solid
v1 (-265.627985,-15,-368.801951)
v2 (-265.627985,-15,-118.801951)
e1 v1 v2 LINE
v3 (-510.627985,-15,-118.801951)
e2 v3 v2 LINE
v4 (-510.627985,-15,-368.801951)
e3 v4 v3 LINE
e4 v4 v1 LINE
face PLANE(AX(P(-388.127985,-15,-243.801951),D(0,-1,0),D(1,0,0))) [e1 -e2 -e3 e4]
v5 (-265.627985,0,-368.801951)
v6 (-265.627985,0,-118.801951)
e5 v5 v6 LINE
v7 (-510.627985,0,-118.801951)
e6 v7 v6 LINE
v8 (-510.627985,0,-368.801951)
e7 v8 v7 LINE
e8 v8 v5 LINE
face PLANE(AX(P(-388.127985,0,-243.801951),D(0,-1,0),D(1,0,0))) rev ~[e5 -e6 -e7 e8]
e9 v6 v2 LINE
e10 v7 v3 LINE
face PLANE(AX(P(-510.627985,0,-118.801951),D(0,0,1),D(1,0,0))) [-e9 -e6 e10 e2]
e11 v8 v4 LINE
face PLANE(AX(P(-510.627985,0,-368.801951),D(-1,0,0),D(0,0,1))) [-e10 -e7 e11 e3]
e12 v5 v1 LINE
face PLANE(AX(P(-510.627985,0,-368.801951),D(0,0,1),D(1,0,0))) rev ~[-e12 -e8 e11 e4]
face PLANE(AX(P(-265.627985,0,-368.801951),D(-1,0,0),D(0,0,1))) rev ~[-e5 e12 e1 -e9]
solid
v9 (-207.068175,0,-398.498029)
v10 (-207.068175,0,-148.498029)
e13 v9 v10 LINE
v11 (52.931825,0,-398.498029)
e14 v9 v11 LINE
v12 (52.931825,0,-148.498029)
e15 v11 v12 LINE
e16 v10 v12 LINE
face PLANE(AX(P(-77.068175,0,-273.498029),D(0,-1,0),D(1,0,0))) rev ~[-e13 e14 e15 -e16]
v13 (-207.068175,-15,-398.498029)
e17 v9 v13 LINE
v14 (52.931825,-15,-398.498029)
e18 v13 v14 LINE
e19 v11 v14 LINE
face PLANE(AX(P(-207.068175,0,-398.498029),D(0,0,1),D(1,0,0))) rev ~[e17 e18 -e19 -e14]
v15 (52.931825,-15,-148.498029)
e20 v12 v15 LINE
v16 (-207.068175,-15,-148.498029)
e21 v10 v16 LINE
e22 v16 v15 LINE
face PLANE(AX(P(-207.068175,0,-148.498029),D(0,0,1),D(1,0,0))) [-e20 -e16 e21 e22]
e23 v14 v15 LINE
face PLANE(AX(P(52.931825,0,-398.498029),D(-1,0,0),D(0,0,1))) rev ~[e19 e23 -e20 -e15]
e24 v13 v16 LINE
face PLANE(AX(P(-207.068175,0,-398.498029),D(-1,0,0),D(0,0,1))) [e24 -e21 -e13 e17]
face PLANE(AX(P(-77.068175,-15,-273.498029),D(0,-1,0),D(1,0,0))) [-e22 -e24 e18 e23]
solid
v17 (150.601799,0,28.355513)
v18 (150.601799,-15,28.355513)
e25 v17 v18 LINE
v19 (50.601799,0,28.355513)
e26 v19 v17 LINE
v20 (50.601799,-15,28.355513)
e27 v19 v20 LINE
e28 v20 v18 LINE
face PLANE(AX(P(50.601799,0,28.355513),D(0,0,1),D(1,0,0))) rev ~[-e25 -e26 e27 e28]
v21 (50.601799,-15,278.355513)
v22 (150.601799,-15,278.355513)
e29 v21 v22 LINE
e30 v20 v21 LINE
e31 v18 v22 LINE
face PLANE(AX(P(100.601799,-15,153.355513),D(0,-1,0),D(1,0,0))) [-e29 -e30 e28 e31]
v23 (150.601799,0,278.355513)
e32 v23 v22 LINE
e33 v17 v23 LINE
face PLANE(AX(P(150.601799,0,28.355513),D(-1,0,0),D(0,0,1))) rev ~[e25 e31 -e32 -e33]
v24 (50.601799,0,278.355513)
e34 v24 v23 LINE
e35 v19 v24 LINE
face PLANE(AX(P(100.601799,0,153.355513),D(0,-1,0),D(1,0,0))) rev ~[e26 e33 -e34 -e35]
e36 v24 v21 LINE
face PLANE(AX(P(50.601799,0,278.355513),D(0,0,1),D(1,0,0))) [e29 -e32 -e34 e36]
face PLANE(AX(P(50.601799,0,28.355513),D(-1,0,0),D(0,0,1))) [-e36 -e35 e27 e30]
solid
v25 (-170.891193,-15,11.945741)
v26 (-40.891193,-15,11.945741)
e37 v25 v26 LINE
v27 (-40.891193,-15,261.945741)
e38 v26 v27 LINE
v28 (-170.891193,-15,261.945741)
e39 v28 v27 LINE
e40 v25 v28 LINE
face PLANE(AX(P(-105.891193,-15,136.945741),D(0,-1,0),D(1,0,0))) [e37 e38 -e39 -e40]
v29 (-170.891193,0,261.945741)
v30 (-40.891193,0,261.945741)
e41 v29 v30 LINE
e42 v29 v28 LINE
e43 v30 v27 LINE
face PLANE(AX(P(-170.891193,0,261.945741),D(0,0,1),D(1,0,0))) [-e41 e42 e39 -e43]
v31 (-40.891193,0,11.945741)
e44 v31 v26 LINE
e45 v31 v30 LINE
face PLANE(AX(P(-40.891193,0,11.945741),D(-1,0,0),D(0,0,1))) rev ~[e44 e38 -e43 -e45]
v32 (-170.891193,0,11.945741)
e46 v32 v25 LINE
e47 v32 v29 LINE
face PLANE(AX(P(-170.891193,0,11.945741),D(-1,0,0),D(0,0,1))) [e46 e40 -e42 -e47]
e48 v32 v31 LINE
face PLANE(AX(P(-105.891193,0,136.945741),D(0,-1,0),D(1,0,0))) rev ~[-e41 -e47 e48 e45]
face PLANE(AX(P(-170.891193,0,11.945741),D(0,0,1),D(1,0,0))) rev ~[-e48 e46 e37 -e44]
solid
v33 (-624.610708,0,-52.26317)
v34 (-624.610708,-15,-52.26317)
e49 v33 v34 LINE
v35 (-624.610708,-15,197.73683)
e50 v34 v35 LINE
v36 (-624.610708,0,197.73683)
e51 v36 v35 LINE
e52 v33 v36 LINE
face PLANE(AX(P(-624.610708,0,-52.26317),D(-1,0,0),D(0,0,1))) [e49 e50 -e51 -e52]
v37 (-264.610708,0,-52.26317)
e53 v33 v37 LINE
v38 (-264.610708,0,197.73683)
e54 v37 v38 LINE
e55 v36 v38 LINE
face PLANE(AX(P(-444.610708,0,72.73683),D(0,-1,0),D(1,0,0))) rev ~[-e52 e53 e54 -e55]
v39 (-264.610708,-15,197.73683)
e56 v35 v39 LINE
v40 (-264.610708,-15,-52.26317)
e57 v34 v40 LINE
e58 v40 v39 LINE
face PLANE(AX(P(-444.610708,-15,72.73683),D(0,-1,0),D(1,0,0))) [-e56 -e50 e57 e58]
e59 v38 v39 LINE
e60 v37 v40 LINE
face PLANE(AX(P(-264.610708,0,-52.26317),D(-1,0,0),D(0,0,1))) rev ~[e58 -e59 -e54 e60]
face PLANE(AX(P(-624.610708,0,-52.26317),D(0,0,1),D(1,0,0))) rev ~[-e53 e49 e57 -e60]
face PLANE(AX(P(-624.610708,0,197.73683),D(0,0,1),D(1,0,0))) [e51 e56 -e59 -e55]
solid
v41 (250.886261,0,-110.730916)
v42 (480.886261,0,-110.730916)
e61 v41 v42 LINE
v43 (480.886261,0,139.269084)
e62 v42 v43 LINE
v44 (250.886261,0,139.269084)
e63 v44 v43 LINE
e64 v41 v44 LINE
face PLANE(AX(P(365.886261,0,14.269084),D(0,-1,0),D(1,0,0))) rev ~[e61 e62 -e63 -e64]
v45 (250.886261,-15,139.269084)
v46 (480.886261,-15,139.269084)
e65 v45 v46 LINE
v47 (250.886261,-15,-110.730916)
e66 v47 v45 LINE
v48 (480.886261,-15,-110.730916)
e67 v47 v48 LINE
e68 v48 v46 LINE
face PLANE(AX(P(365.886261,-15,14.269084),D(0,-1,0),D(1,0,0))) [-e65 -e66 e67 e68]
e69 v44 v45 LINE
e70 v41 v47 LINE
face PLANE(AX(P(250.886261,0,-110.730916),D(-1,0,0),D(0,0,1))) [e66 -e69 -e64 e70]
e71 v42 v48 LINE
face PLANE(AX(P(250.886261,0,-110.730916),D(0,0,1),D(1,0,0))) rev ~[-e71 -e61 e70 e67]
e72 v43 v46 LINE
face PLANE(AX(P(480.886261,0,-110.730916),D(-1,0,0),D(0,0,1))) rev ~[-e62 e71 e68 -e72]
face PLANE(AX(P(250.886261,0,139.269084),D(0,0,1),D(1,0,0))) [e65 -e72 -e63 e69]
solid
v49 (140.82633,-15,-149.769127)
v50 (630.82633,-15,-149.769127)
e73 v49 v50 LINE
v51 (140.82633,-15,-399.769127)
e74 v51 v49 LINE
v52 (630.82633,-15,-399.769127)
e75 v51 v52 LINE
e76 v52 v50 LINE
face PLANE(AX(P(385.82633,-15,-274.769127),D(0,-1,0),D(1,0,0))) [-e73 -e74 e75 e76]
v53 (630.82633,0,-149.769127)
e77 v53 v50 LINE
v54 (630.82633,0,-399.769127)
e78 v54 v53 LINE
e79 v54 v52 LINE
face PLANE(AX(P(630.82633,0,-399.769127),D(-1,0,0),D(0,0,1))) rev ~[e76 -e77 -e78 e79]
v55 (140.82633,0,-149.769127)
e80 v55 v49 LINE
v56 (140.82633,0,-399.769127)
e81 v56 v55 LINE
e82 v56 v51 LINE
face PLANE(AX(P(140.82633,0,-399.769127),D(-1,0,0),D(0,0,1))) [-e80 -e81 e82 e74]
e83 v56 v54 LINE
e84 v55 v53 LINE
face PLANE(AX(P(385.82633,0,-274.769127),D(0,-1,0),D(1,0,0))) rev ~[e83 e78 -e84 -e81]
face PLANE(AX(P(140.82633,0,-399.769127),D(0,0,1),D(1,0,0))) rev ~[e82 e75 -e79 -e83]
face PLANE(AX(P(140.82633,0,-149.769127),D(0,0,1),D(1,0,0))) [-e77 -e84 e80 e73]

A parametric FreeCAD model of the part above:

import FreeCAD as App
import Part
import Sketcher
Q = App.Units.Quantity

doc = App.newDocument("Part")
params = doc.addObject("Spreadsheet::Sheet", "Params")
for row, (alias, value) in enumerate([
    ("sketch1_width", "360 mm"),
    ("sketch1_height", "250 mm"),
    ("pad1_length", "15 mm"),
    ("sketch2_width", "130 mm"),
    ("sketch2_height", "250 mm"),
    ("pad2_length", "15 mm"),
    ("sketch3_width", "100 mm"),
    ("sketch3_height", "250 mm"),
    ("pad3_length", "15 mm"),
    ("sketch4_width", "230 mm"),
    ("sketch4_height", "250 mm"),
    ("pad4_length", "15 mm"),
    ("sketch5_width", "245 mm"),
    ("sketch5_height", "250 mm"),
    ("pad5_length", "15 mm"),
    ("sketch6_width", "260 mm"),
    ("sketch6_height", "250 mm"),
    ("pad6_length", "15 mm"),
    ("sketch7_width", "490 mm"),
    ("sketch7_height", "250 mm"),
    ("pad7_length", "15 mm"),
], start=1):
    params.set(f"A{row}", alias)
    params.set(f"B{row}", "=" + value)
    params.setAlias(f"B{row}", alias)

body = doc.addObject("PartDesign::Body", "Body")

# Sketch on XZ plane
sketch1 = doc.addObject("Sketcher::SketchObject", "Sketch")
body.addObject(sketch1)
sketch1.AttachmentSupport = (doc.XZ_Plane, [""])
sketch1.MapMode = "FlatFace"
sketch1.addGeometry([
    Part.LineSegment(App.Vector(-625, 198, 0), App.Vector(-625, -52, 0)),
    Part.LineSegment(App.Vector(-625, -52, 0), App.Vector(-265, -52, 0)),
    Part.LineSegment(App.Vector(-265, -52, 0), App.Vector(-265, 198, 0)),
    Part.LineSegment(App.Vector(-265, 198, 0), App.Vector(-625, 198, 0)),
], False)
sketch1.addConstraint([
    Sketcher.Constraint("Coincident", 0, 2, 1, 1),
    Sketcher.Constraint("Coincident", 1, 2, 2, 1),
    Sketcher.Constraint("Coincident", 2, 2, 3, 1),
    Sketcher.Constraint("Coincident", 3, 2, 0, 1),
    Sketcher.Constraint("Vertical", 0),
    Sketcher.Constraint("Horizontal", 1),
    Sketcher.Constraint("Vertical", 2),
    Sketcher.Constraint("Horizontal", 3),
    Sketcher.Constraint("DistanceX", 1, 1, 1, 2, Q("360 mm")),
    Sketcher.Constraint("DistanceY", 0, 2, 0, 1, Q("250 mm")),
    Sketcher.Constraint("DistanceX", 0, 2, -1, 1, Q("624.610708 mm")),
    Sketcher.Constraint("DistanceY", 0, 2, -1, 1, Q("52.26317 mm")),
])
sketch1.setExpression("Constraints[8]", "Params.sketch1_width")
sketch1.setExpression("Constraints[9]", "Params.sketch1_height")
pad1 = doc.addObject("PartDesign::Pad", "Pad")
body.addObject(pad1)
pad1.Profile = sketch1
pad1.setExpression("Length", "Params.pad1_length")
body2 = doc.addObject("PartDesign::Body", "Body001")

# Sketch on XZ plane
sketch2 = doc.addObject("Sketcher::SketchObject", "Sketch001")
body2.addObject(sketch2)
sketch2.AttachmentSupport = (doc.getObject("XZ_Plane001"), [""])
sketch2.MapMode = "FlatFace"
sketch2.addGeometry([
    Part.LineSegment(App.Vector(-171, 262, 0), App.Vector(-171, 12, 0)),
    Part.LineSegment(App.Vector(-171, 12, 0), App.Vector(-41, 12, 0)),
    Part.LineSegment(App.Vector(-41, 12, 0), App.Vector(-41, 262, 0)),
    Part.LineSegment(App.Vector(-41, 262, 0), App.Vector(-171, 262, 0)),
], False)
sketch2.addConstraint([
    Sketcher.Constraint("Coincident", 0, 2, 1, 1),
    Sketcher.Constraint("Coincident", 1, 2, 2, 1),
    Sketcher.Constraint("Coincident", 2, 2, 3, 1),
    Sketcher.Constraint("Coincident", 3, 2, 0, 1),
    Sketcher.Constraint("Vertical", 0),
    Sketcher.Constraint("Horizontal", 1),
    Sketcher.Constraint("Vertical", 2),
    Sketcher.Constraint("Horizontal", 3),
    Sketcher.Constraint("DistanceX", 1, 1, 1, 2, Q("130 mm")),
    Sketcher.Constraint("DistanceY", 0, 2, 0, 1, Q("250 mm")),
    Sketcher.Constraint("DistanceY", -1, 1, 0, 2, Q("11.945741 mm")),
    Sketcher.Constraint("DistanceX", 0, 2, -1, 1, Q("170.891193 mm")),
])
sketch2.setExpression("Constraints[8]", "Params.sketch2_width")
sketch2.setExpression("Constraints[9]", "Params.sketch2_height")
pad2 = doc.addObject("PartDesign::Pad", "Pad001")
body2.addObject(pad2)
pad2.Profile = sketch2
pad2.setExpression("Length", "Params.pad2_length")
body3 = doc.addObject("PartDesign::Body", "Body002")

# Sketch on XZ plane
sketch3 = doc.addObject("Sketcher::SketchObject", "Sketch002")
body3.addObject(sketch3)
sketch3.AttachmentSupport = (doc.getObject("XZ_Plane002"), [""])
sketch3.MapMode = "FlatFace"
sketch3.addGeometry([
    Part.LineSegment(App.Vector(51, 278, 0), App.Vector(51, 28, 0)),
    Part.LineSegment(App.Vector(51, 28, 0), App.Vector(151, 28, 0)),
    Part.LineSegment(App.Vector(151, 28, 0), App.Vector(151, 278, 0)),
    Part.LineSegment(App.Vector(151, 278, 0), App.Vector(51, 278, 0)),
], False)
sketch3.addConstraint([
    Sketcher.Constraint("Coincident", 0, 2, 1, 1),
    Sketcher.Constraint("Coincident", 1, 2, 2, 1),
    Sketcher.Constraint("Coincident", 2, 2, 3, 1),
    Sketcher.Constraint("Coincident", 3, 2, 0, 1),
    Sketcher.Constraint("Vertical", 0),
    Sketcher.Constraint("Horizontal", 1),
    Sketcher.Constraint("Vertical", 2),
    Sketcher.Constraint("Horizontal", 3),
    Sketcher.Constraint("DistanceX", 1, 1, 1, 2, Q("100 mm")),
    Sketcher.Constraint("DistanceY", 0, 2, 0, 1, Q("250 mm")),
    Sketcher.Constraint("DistanceX", -1, 1, 0, 2, Q("50.601799 mm")),
    Sketcher.Constraint("DistanceY", -1, 1, 0, 2, Q("28.355513 mm")),
])
sketch3.setExpression("Constraints[8]", "Params.sketch3_width")
sketch3.setExpression("Constraints[9]", "Params.sketch3_height")
pad3 = doc.addObject("PartDesign::Pad", "Pad002")
body3.addObject(pad3)
pad3.Profile = sketch3
pad3.setExpression("Length", "Params.pad3_length")
body4 = doc.addObject("PartDesign::Body", "Body003")

# Sketch on XZ plane
sketch4 = doc.addObject("Sketcher::SketchObject", "Sketch003")
body4.addObject(sketch4)
sketch4.AttachmentSupport = (doc.getObject("XZ_Plane003"), [""])
sketch4.MapMode = "FlatFace"
sketch4.addGeometry([
    Part.LineSegment(App.Vector(251, 139, 0), App.Vector(251, -111, 0)),
    Part.LineSegment(App.Vector(251, -111, 0), App.Vector(481, -111, 0)),
    Part.LineSegment(App.Vector(481, -111, 0), App.Vector(481, 139, 0)),
    Part.LineSegment(App.Vector(481, 139, 0), App.Vector(251, 139, 0)),
], False)
sketch4.addConstraint([
    Sketcher.Constraint("Coincident", 0, 2, 1, 1),
    Sketcher.Constraint("Coincident", 1, 2, 2, 1),
    Sketcher.Constraint("Coincident", 2, 2, 3, 1),
    Sketcher.Constraint("Coincident", 3, 2, 0, 1),
    Sketcher.Constraint("Vertical", 0),
    Sketcher.Constraint("Horizontal", 1),
    Sketcher.Constraint("Vertical", 2),
    Sketcher.Constraint("Horizontal", 3),
    Sketcher.Constraint("DistanceX", 1, 1, 1, 2, Q("230 mm")),
    Sketcher.Constraint("DistanceY", 0, 2, 0, 1, Q("250 mm")),
    Sketcher.Constraint("DistanceX", -1, 1, 0, 2, Q("250.886261 mm")),
    Sketcher.Constraint("DistanceY", 0, 2, -1, 1, Q("110.730916 mm")),
])
sketch4.setExpression("Constraints[8]", "Params.sketch4_width")
sketch4.setExpression("Constraints[9]", "Params.sketch4_height")
pad4 = doc.addObject("PartDesign::Pad", "Pad003")
body4.addObject(pad4)
pad4.Profile = sketch4
pad4.setExpression("Length", "Params.pad4_length")
body5 = doc.addObject("PartDesign::Body", "Body004")

# Sketch on XZ plane
sketch5 = doc.addObject("Sketcher::SketchObject", "Sketch004")
body5.addObject(sketch5)
sketch5.AttachmentSupport = (doc.getObject("XZ_Plane004"), [""])
sketch5.MapMode = "FlatFace"
sketch5.addGeometry([
    Part.LineSegment(App.Vector(-511, -119, 0), App.Vector(-511, -369, 0)),
    Part.LineSegment(App.Vector(-511, -369, 0), App.Vector(-266, -369, 0)),
    Part.LineSegment(App.Vector(-266, -369, 0), App.Vector(-266, -119, 0)),
    Part.LineSegment(App.Vector(-266, -119, 0), App.Vector(-511, -119, 0)),
], False)
sketch5.addConstraint([
    Sketcher.Constraint("Coincident", 0, 2, 1, 1),
    Sketcher.Constraint("Coincident", 1, 2, 2, 1),
    Sketcher.Constraint("Coincident", 2, 2, 3, 1),
    Sketcher.Constraint("Coincident", 3, 2, 0, 1),
    Sketcher.Constraint("Vertical", 0),
    Sketcher.Constraint("Horizontal", 1),
    Sketcher.Constraint("Vertical", 2),
    Sketcher.Constraint("Horizontal", 3),
    Sketcher.Constraint("DistanceX", 1, 1, 1, 2, Q("245 mm")),
    Sketcher.Constraint("DistanceY", 0, 2, 0, 1, Q("250 mm")),
    Sketcher.Constraint("DistanceY", 0, 2, -1, 1, Q("368.801951 mm")),
    Sketcher.Constraint("DistanceX", 0, 2, -1, 1, Q("510.627985 mm")),
])
sketch5.setExpression("Constraints[8]", "Params.sketch5_width")
sketch5.setExpression("Constraints[9]", "Params.sketch5_height")
pad5 = doc.addObject("PartDesign::Pad", "Pad004")
body5.addObject(pad5)
pad5.Profile = sketch5
pad5.setExpression("Length", "Params.pad5_length")
body6 = doc.addObject("PartDesign::Body", "Body005")

# Sketch on XZ plane
sketch6 = doc.addObject("Sketcher::SketchObject", "Sketch005")
body6.addObject(sketch6)
sketch6.AttachmentSupport = (doc.getObject("XZ_Plane005"), [""])
sketch6.MapMode = "FlatFace"
sketch6.addGeometry([
    Part.LineSegment(App.Vector(-207, -148, 0), App.Vector(-207, -398, 0)),
    Part.LineSegment(App.Vector(-207, -398, 0), App.Vector(53, -398, 0)),
    Part.LineSegment(App.Vector(53, -398, 0), App.Vector(53, -148, 0)),
    Part.LineSegment(App.Vector(53, -148, 0), App.Vector(-207, -148, 0)),
], False)
sketch6.addConstraint([
    Sketcher.Constraint("Coincident", 0, 2, 1, 1),
    Sketcher.Constraint("Coincident", 1, 2, 2, 1),
    Sketcher.Constraint("Coincident", 2, 2, 3, 1),
    Sketcher.Constraint("Coincident", 3, 2, 0, 1),
    Sketcher.Constraint("Vertical", 0),
    Sketcher.Constraint("Horizontal", 1),
    Sketcher.Constraint("Vertical", 2),
    Sketcher.Constraint("Horizontal", 3),
    Sketcher.Constraint("DistanceX", 1, 1, 1, 2, Q("260 mm")),
    Sketcher.Constraint("DistanceY", 0, 2, 0, 1, Q("250 mm")),
    Sketcher.Constraint("DistanceY", 0, 2, -1, 1, Q("398.498029 mm")),
    Sketcher.Constraint("DistanceX", 0, 2, -1, 1, Q("207.068175 mm")),
])
sketch6.setExpression("Constraints[8]", "Params.sketch6_width")
sketch6.setExpression("Constraints[9]", "Params.sketch6_height")
pad6 = doc.addObject("PartDesign::Pad", "Pad005")
body6.addObject(pad6)
pad6.Profile = sketch6
pad6.setExpression("Length", "Params.pad6_length")
body7 = doc.addObject("PartDesign::Body", "Body006")

# Sketch on XZ plane
sketch7 = doc.addObject("Sketcher::SketchObject", "Sketch006")
body7.addObject(sketch7)
sketch7.AttachmentSupport = (doc.getObject("XZ_Plane006"), [""])
sketch7.MapMode = "FlatFace"
sketch7.addGeometry([
    Part.LineSegment(App.Vector(141, -150, 0), App.Vector(141, -400, 0)),
    Part.LineSegment(App.Vector(141, -400, 0), App.Vector(631, -400, 0)),
    Part.LineSegment(App.Vector(631, -400, 0), App.Vector(631, -150, 0)),
    Part.LineSegment(App.Vector(631, -150, 0), App.Vector(141, -150, 0)),
], False)
sketch7.addConstraint([
    Sketcher.Constraint("Coincident", 0, 2, 1, 1),
    Sketcher.Constraint("Coincident", 1, 2, 2, 1),
    Sketcher.Constraint("Coincident", 2, 2, 3, 1),
    Sketcher.Constraint("Coincident", 3, 2, 0, 1),
    Sketcher.Constraint("Vertical", 0),
    Sketcher.Constraint("Horizontal", 1),
    Sketcher.Constraint("Vertical", 2),
    Sketcher.Constraint("Horizontal", 3),
    Sketcher.Constraint("DistanceX", 1, 1, 1, 2, Q("490 mm")),
    Sketcher.Constraint("DistanceY", 0, 2, 0, 1, Q("250 mm")),
    Sketcher.Constraint("DistanceX", -1, 1, 0, 2, Q("140.82633 mm")),
    Sketcher.Constraint("DistanceY", 0, 2, -1, 1, Q("399.769127 mm")),
])
sketch7.setExpression("Constraints[8]", "Params.sketch7_width")
sketch7.setExpression("Constraints[9]", "Params.sketch7_height")
pad7 = doc.addObject("PartDesign::Pad", "Pad006")
body7.addObject(pad7)
pad7.Profile = sketch7
pad7.setExpression("Length", "Params.pad7_length")

doc.recompute()
